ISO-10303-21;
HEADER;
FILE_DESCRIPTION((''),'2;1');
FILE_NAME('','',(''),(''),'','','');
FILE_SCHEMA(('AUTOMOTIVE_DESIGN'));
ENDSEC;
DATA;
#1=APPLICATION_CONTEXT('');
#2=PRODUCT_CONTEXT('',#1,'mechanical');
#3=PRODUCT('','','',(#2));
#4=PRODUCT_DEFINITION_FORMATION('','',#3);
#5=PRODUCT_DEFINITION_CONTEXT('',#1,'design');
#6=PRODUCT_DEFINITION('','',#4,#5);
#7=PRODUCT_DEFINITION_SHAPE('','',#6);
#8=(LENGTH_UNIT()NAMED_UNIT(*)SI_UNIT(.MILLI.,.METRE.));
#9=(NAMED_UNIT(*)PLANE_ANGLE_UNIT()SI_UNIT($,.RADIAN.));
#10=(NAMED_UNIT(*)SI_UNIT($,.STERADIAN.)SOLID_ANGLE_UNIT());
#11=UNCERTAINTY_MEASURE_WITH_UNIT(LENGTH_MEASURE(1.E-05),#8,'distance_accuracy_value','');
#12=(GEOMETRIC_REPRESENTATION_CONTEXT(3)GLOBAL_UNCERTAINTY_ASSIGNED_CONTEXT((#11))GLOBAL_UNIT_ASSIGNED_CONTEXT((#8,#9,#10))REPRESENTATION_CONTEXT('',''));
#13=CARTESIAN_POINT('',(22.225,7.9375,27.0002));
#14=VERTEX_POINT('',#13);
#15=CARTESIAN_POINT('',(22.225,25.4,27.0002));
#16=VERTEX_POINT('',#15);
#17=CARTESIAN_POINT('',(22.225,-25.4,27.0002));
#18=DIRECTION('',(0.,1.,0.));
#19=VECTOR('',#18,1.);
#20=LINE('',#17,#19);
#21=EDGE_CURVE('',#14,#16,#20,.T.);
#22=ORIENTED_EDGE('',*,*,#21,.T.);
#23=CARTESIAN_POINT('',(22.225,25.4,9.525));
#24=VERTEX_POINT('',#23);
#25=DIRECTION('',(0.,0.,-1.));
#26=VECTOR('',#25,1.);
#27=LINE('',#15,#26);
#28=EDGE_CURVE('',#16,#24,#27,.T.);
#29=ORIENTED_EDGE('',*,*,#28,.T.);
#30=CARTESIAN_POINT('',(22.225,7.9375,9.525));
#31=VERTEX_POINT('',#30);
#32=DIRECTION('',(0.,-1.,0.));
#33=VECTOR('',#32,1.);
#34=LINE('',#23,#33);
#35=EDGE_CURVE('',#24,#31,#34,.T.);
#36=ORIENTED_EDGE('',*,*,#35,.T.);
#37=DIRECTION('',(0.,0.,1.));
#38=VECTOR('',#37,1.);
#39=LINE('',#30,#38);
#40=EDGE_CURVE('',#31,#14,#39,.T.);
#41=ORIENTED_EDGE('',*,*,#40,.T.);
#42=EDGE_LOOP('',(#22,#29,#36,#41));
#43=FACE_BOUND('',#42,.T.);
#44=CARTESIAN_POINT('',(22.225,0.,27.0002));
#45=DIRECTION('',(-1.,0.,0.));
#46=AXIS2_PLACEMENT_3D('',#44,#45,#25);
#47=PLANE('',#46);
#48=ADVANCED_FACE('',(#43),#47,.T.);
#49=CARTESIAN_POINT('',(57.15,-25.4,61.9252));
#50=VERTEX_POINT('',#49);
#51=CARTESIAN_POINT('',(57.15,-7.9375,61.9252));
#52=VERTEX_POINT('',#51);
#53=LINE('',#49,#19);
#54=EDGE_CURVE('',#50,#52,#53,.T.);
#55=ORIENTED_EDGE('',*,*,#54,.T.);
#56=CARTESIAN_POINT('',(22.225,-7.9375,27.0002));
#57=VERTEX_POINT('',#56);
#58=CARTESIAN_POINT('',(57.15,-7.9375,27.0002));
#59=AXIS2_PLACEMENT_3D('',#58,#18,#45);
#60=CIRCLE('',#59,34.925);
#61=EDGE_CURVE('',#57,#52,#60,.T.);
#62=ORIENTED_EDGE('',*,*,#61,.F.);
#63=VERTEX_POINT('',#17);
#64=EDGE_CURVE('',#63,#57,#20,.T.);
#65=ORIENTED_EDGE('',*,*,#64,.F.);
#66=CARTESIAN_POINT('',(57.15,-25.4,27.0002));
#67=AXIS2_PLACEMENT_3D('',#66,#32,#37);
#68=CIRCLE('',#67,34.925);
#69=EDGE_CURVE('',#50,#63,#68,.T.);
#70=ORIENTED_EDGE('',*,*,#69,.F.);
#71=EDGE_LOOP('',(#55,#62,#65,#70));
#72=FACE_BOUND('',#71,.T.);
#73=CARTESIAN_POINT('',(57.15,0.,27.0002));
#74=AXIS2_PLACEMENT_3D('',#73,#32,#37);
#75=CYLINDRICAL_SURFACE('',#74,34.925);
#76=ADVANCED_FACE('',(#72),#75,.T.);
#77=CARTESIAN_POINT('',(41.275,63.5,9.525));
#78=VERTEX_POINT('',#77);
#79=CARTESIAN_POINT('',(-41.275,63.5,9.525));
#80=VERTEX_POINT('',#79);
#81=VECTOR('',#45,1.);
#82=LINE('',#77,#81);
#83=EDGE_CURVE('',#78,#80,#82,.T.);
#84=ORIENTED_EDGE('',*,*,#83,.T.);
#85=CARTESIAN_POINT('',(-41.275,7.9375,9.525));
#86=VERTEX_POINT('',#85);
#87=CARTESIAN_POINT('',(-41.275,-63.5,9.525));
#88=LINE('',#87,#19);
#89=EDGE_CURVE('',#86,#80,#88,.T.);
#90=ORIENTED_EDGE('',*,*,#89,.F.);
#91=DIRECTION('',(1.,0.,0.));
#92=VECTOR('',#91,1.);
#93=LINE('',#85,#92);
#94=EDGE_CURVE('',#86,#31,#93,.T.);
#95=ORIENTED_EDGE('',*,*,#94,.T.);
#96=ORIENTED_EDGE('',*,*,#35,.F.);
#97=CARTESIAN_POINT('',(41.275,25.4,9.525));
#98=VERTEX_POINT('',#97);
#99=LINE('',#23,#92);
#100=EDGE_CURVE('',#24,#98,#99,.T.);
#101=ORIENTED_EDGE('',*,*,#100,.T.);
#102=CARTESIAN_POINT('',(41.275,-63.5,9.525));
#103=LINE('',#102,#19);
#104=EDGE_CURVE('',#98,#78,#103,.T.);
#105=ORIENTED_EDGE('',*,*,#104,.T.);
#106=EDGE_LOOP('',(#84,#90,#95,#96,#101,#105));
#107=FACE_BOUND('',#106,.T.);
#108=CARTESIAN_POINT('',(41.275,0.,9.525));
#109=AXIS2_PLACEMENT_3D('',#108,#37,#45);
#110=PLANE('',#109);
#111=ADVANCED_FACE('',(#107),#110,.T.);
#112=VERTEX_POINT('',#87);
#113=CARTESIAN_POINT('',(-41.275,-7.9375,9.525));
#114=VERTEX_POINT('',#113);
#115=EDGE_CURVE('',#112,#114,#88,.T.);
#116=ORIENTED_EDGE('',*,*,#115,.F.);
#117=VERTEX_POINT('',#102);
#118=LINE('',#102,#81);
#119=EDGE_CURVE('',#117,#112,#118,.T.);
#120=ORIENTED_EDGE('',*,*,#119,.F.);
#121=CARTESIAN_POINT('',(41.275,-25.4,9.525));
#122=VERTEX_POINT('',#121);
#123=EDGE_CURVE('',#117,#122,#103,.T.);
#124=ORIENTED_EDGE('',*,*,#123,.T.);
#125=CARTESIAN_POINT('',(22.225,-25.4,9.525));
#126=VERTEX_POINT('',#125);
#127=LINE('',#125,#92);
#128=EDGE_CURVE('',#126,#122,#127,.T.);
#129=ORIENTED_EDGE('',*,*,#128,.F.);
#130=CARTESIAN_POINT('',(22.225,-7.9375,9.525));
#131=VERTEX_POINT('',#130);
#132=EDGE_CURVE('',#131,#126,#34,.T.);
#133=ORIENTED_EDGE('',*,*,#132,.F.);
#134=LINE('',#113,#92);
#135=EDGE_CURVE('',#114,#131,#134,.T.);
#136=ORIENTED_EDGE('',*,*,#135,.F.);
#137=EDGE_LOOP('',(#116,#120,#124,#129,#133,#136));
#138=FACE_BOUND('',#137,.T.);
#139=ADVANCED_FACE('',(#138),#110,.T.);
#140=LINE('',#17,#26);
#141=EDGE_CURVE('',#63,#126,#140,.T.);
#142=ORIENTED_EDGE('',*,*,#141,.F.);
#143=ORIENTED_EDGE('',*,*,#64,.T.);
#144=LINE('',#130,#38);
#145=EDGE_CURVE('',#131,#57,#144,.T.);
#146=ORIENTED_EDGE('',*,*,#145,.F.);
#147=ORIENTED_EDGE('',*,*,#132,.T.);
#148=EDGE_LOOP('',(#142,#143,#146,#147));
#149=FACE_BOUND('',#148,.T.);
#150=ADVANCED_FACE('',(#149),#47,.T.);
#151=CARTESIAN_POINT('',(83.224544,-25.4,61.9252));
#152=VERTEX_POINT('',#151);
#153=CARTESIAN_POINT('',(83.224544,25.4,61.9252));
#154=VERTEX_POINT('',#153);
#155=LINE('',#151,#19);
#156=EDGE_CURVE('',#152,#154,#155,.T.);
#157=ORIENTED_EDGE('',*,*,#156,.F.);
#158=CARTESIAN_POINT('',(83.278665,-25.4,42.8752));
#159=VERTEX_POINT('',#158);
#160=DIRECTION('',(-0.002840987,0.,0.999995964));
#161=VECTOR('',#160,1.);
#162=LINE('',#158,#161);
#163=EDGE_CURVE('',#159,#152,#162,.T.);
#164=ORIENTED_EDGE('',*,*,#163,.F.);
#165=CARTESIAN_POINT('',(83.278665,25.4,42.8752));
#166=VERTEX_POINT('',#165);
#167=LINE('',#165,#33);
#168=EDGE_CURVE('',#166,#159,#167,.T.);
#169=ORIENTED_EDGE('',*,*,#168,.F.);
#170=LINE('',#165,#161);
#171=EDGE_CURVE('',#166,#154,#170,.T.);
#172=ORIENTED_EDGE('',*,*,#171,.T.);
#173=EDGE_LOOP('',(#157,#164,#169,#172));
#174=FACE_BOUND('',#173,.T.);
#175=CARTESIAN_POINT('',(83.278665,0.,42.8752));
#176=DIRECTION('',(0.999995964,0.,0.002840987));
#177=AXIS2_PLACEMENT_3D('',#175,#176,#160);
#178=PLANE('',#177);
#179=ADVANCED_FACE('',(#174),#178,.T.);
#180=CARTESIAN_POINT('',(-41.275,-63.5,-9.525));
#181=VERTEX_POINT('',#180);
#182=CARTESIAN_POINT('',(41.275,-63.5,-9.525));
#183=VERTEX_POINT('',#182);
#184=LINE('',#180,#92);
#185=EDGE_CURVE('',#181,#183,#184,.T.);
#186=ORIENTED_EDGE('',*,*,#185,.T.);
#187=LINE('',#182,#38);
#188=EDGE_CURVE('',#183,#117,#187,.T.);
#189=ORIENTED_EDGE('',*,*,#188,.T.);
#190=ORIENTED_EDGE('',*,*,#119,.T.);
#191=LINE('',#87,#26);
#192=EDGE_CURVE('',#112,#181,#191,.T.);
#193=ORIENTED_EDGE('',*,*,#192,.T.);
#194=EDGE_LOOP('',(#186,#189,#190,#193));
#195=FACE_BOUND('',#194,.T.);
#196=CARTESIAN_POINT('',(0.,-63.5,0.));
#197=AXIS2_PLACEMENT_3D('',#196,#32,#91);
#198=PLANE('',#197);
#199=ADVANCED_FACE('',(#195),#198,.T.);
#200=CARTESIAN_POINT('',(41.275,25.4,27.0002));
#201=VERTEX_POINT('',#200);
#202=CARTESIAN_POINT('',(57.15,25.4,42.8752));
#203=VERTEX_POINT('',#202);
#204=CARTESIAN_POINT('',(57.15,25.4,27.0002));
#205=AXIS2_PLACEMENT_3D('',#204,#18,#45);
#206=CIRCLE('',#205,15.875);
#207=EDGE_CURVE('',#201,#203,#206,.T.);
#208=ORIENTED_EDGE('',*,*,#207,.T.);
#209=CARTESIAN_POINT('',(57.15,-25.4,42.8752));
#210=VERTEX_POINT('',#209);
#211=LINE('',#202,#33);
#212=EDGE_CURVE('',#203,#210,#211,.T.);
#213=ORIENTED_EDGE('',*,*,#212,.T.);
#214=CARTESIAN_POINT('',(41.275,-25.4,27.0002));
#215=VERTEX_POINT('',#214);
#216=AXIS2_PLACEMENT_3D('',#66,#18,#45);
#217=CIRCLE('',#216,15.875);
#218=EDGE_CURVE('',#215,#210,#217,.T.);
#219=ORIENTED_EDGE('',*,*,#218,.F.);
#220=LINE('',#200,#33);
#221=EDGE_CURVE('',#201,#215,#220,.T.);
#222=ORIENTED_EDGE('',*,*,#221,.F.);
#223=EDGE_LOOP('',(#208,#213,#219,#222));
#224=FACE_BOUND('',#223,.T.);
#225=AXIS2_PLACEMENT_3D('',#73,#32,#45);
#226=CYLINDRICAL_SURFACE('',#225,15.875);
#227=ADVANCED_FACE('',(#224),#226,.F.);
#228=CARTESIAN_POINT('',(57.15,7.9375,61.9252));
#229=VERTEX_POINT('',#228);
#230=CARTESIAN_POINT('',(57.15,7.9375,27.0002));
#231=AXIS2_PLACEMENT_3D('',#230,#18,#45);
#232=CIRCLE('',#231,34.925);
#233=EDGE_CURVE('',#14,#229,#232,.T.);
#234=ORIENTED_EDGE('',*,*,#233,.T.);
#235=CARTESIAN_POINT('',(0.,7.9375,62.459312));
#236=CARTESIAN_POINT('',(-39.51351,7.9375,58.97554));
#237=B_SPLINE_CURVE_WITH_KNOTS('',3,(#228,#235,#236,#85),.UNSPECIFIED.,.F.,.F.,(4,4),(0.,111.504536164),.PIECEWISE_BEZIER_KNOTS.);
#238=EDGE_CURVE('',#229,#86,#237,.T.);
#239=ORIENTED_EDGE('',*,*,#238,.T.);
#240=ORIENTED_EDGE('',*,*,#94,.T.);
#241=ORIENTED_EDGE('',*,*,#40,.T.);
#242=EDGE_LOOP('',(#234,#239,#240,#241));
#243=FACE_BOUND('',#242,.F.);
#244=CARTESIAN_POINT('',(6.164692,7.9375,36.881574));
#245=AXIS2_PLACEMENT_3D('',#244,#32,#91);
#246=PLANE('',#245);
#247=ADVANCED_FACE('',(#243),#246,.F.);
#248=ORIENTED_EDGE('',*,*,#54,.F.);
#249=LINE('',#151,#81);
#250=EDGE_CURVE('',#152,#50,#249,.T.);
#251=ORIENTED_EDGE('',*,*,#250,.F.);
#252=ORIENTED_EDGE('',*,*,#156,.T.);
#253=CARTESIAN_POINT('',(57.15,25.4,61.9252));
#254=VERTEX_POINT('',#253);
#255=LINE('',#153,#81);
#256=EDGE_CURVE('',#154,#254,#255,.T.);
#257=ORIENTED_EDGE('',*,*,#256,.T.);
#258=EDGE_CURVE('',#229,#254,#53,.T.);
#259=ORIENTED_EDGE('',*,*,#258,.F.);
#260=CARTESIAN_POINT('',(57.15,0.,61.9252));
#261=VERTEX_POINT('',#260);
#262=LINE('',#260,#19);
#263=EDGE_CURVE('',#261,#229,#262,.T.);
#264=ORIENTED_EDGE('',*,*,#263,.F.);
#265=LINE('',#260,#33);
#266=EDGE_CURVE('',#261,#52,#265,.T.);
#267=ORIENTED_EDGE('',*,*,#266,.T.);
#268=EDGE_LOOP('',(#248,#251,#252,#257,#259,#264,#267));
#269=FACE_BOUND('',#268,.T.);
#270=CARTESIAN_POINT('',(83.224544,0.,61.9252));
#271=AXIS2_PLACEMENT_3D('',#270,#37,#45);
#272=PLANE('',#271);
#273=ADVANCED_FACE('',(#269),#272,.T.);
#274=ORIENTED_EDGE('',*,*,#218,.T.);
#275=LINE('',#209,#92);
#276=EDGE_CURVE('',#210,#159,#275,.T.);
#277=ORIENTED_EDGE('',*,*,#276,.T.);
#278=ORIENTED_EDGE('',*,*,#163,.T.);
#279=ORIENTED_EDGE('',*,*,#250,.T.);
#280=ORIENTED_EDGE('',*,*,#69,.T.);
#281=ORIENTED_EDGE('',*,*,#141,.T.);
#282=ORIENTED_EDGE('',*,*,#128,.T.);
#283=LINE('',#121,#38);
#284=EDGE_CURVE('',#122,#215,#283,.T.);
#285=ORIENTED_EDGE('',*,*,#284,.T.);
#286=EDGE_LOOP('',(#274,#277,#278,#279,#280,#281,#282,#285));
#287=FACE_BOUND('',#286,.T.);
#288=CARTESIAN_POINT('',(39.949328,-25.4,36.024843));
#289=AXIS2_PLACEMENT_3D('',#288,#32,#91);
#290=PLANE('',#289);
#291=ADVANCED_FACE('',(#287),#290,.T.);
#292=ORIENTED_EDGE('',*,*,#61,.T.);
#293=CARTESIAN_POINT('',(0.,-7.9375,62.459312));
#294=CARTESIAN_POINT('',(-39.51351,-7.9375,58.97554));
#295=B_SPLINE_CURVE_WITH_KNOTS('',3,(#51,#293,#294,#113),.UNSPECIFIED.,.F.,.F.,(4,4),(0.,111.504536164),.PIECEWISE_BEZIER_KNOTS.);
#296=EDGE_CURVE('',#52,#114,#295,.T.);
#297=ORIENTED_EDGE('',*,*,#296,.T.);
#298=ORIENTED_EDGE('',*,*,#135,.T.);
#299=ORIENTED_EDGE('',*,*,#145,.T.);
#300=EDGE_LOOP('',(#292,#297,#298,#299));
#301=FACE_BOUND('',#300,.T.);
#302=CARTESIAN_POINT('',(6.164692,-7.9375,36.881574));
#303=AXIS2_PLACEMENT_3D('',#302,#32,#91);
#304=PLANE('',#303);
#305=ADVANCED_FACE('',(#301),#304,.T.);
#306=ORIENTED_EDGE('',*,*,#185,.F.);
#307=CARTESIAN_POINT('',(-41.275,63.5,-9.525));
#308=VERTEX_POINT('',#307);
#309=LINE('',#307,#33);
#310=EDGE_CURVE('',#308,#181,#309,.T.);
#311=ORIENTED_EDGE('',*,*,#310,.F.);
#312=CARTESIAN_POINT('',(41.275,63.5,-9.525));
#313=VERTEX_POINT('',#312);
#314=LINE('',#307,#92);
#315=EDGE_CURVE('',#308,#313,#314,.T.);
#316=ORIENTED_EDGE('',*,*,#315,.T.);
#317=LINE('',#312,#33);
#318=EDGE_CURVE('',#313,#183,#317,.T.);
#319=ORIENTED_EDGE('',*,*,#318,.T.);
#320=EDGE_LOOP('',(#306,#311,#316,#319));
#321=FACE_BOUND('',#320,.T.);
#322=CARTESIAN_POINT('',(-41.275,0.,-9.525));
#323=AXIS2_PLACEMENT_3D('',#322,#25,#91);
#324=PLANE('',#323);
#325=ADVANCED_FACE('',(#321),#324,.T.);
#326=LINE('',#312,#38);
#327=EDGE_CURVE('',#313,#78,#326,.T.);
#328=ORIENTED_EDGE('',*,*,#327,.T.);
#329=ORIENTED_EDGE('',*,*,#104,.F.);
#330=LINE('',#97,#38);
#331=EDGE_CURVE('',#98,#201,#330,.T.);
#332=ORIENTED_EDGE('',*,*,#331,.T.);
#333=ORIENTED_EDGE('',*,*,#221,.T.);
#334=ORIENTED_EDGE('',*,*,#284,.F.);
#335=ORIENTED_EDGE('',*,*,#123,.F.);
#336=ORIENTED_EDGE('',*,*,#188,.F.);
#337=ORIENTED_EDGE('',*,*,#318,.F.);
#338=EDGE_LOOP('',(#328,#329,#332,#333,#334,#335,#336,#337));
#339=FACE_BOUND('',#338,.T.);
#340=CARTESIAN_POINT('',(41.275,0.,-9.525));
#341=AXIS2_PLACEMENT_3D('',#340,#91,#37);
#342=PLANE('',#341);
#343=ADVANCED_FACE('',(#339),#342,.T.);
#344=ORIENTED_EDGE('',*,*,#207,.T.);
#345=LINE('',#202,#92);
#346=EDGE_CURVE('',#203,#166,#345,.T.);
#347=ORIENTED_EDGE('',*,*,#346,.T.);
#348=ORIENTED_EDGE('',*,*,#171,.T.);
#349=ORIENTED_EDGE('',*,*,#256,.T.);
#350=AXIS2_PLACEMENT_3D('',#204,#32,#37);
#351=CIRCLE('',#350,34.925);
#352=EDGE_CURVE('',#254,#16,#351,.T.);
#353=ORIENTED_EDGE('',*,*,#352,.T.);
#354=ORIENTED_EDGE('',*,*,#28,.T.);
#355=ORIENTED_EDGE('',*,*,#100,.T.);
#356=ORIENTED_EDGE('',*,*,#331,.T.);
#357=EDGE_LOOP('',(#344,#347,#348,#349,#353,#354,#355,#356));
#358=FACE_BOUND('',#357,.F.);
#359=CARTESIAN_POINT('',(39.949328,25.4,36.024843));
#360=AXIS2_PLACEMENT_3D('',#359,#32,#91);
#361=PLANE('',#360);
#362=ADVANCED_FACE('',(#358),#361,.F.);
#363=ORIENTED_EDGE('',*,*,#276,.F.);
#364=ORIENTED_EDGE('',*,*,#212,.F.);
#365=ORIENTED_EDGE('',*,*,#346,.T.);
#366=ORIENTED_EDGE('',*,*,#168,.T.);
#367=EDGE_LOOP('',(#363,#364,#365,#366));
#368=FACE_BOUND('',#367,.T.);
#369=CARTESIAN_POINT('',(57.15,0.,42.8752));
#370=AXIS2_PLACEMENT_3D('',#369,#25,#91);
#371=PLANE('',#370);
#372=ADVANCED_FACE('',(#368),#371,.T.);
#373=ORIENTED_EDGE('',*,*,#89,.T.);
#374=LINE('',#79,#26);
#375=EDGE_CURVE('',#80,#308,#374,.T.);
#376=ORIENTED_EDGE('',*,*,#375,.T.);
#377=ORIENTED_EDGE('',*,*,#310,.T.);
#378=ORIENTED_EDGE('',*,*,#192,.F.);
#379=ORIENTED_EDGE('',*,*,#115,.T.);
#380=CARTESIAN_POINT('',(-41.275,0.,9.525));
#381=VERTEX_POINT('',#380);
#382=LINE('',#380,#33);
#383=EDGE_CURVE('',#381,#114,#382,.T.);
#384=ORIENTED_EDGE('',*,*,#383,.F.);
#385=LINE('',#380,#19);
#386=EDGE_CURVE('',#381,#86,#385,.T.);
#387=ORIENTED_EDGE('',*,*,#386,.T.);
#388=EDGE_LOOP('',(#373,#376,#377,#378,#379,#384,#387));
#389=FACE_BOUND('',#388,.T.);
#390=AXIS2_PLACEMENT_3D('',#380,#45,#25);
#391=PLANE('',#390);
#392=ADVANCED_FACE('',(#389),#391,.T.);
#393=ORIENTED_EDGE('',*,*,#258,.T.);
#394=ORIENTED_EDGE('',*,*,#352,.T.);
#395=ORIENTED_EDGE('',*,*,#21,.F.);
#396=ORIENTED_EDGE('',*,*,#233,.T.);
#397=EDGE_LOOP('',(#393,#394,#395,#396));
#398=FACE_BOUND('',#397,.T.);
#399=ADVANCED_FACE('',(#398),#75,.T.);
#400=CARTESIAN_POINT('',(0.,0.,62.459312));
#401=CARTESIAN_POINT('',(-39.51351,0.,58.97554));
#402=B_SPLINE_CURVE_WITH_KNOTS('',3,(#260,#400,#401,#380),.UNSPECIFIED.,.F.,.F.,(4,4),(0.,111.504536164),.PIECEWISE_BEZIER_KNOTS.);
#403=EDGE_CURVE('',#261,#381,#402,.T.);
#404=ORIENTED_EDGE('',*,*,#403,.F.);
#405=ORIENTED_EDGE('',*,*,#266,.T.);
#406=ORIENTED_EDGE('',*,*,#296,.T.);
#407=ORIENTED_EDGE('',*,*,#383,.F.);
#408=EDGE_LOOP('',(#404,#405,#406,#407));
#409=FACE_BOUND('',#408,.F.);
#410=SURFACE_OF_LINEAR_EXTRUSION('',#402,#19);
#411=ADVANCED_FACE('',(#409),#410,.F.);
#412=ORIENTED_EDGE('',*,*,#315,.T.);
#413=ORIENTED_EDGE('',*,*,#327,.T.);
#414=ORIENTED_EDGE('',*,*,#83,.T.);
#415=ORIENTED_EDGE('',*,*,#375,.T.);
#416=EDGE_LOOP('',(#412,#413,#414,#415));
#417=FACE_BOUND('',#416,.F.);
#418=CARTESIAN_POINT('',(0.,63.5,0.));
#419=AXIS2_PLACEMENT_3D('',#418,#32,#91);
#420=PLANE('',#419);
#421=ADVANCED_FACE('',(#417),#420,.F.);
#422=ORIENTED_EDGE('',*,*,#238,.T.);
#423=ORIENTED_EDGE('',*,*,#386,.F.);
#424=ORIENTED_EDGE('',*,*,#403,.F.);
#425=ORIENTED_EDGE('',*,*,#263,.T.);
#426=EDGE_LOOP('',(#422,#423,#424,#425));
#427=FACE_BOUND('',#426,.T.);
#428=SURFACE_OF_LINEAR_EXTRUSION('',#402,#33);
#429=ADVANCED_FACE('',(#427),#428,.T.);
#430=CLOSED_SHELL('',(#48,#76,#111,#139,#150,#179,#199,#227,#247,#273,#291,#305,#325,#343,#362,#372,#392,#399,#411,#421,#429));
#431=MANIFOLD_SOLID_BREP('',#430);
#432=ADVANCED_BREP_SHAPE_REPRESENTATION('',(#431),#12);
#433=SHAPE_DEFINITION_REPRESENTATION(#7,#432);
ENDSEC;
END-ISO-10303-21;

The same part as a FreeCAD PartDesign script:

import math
import FreeCAD as App
import Part
import Sketcher
Q = App.Units.Quantity


def add_polygon(sketch, points):
    """Adds a closed chain of lines whose ends are joined by coincident constraints."""
    first, n = sketch.GeometryCount, len(points)
    for a, b in zip(points, points[1:] + points[:1]):
        sketch.addGeometry(Part.LineSegment(App.Vector(*a, 0), App.Vector(*b, 0)), False)
    for i in range(n):
        sketch.addConstraint(Sketcher.Constraint("Coincident", first + i, 2, first + (i + 1) % n, 1))

doc = App.newDocument("Part")
params = doc.addObject("Spreadsheet::Sheet", "Params")
for row, (alias, value) in enumerate([
    ("sketch1_width", "3.25 in"),
    ("sketch1_height", "0.75 in"),
    ("pad1_length", "5 in"),
    ("sketch2_radius", "0.625 in"),
    ("sketch2_radius2", "1.375 in"),
    ("sketch2_height", "0.688 in"),
    ("pad2_length", "2 in"),
    ("sketch3_width", "2.5 in"),
    ("sketch3_radius", "1.375 in"),
    ("pad3_length", "0.625 in"),
], start=1):
    params.set(f"A{row}", alias)
    params.set(f"B{row}", "=" + value)
    params.setAlias(f"B{row}", alias)

body = doc.addObject("PartDesign::Body", "Body")

# Sketch on XZ plane
sketch1 = body.newObject("Sketcher::SketchObject", "Sketch")
sketch1.AttachmentSupport = (doc.getObject("XZ_Plane"), [""])
sketch1.MapMode = "FlatFace"
add_polygon(sketch1, [(-41, 10), (-41, -10), (41, -10), (41, 10)])  # lines 0-3
sketch1.addConstraint([
    Sketcher.Constraint("Vertical", 0),
    Sketcher.Constraint("Horizontal", 1),
    Sketcher.Constraint("Vertical", 2),
    Sketcher.Constraint("Horizontal", 3),
    Sketcher.Constraint("Symmetric", 0, 2, 2, 2, -1, 1),
    Sketcher.Constraint("DistanceX", 1, 1, 1, 2, Q("3.25 in")),
    Sketcher.Constraint("DistanceY", 0, 2, 0, 1, Q("0.75 in")),
])
sketch1.setExpression("Constraints[9]", "Params.sketch1_width")
sketch1.setExpression("Constraints[10]", "Params.sketch1_height")
pad1 = body.newObject("PartDesign::Pad", "Pad")
pad1.Profile = sketch1
pad1.setExpression("Length", "Params.pad1_length")
pad1.Midplane = True

# Sketch on XZ plane
sketch2 = body.newObject("Sketcher::SketchObject", "Sketch001")
sketch2.AttachmentSupport = (doc.getObject("XZ_Plane"), [""])
sketch2.MapMode = "FlatFace"
sketch2.addGeometry([
    Part.LineSegment(App.Vector(22, 27, 0), App.Vector(22, 10, 0)),  # 0
    Part.LineSegment(App.Vector(22, 10, 0), App.Vector(41, 10, 0)),  # 1
    Part.LineSegment(App.Vector(41, 10, 0), App.Vector(41, 27, 0)),  # 2
    Part.ArcOfCircle(Part.Circle(App.Vector(57, 27, 0), App.Vector(0, 0, 1), 16), math.radians(90), math.radians(180)),  # 3
    Part.LineSegment(App.Vector(57, 43, 0), App.Vector(83, 43, 0)),  # 4
    Part.LineSegment(App.Vector(83, 43, 0), App.Vector(83, 62, 0)),  # 5
    Part.LineSegment(App.Vector(83, 62, 0), App.Vector(57, 62, 0)),  # 6
    Part.ArcOfCircle(Part.Circle(App.Vector(57, 27, 0), App.Vector(0, 0, 1), 35), math.radians(90), math.radians(180)),  # 7
], False)
sketch2.addConstraint([
    Sketcher.Constraint("Coincident", 0, 2, 1, 1),
    Sketcher.Constraint("Coincident", 1, 2, 2, 1),
    Sketcher.Constraint("Tangent", 2, 2, 3, 2),
    Sketcher.Constraint("Tangent", 3, 1, 4, 1),
    Sketcher.Constraint("Coincident", 4, 2, 5, 1),
    Sketcher.Constraint("Coincident", 5, 2, 6, 1),
    Sketcher.Constraint("Tangent", 6, 2, 7, 1),
    Sketcher.Constraint("Tangent", 7, 2, 0, 1),
    Sketcher.Constraint("Vertical", 0),
    Sketcher.Constraint("Horizontal", 1),
    Sketcher.Constraint("Vertical", 2),
    Sketcher.Constraint("Horizontal", 4),
    Sketcher.Constraint("Horizontal", 6),
    Sketcher.Constraint("Coincident", 7, 3, 3, 3),
    Sketcher.Constraint("Radius", 3, Q("0.625 in")),
    Sketcher.Constraint("Radius", 7, Q("1.375 in")),
    Sketcher.Constraint("DistanceY", 0, 2, 0, 1, Q("0.688 in")),
    Sketcher.Constraint("DistanceX", -1, 1, 3, 3, Q("2.25 in")),
    Sketcher.Constraint("DistanceY", -1, 1, 3, 3, Q("1.063 in")),
    Sketcher.Constraint("DistanceX", 4, 1, 4, 2, 26.128665),
    Sketcher.Constraint("DistanceX", 6, 2, 6, 1, 26.074544),
])
sketch2.setExpression("Constraints[14]", "Params.sketch2_radius")
sketch2.setExpression("Constraints[15]", "Params.sketch2_radius2")
sketch2.setExpression("Constraints[16]", "Params.sketch2_height")
pad2 = body.newObject("PartDesign::Pad", "Pad001")
pad2.Profile = sketch2
pad2.setExpression("Length", "Params.pad2_length")
pad2.Midplane = True

# Sketch on XZ plane
sketch3 = body.newObject("Sketcher::SketchObject", "Sketch002")
sketch3.AttachmentSupport = (doc.getObject("XZ_Plane"), [""])
sketch3.MapMode = "FlatFace"
sketch3.addGeometry([
    Part.BSplineCurve([App.Vector(57.15, 61.9252, 0), App.Vector(0, 62.459312, 0), App.Vector(-39.51351, 58.97554, 0), App.Vector(-41.275, 9.525, 0)], [4, 4], [0, 111.504536164], False, 3, [1, 1, 1, 1], False),
    Part.LineSegment(App.Vector(-41.275, 9.525, 0), App.Vector(22.225, 9.525, 0)),
    Part.LineSegment(App.Vector(22.225, 9.525, 0), App.Vector(22.225, 27.0002, 0)),
    Part.ArcOfCircle(Part.Circle(App.Vector(57.15, 27.0002, 0), App.Vector(0, 0, 1), 34.925), math.radians(90), math.radians(180)),
], False)
sketch3.addConstraint([
    Sketcher.Constraint("Block", 0),
    Sketcher.Constraint("Coincident", 0, 2, 1, 1),
    Sketcher.Constraint("Coincident", 1, 2, 2, 1),
    Sketcher.Constraint("Tangent", 2, 2, 3, 2),
    Sketcher.Constraint("Coincident", 3, 1, 0, 1),
    Sketcher.Constraint("Horizontal", 1),
    Sketcher.Constraint("Vertical", 2),
    Sketcher.Constraint("DistanceX", 1, 1, 1, 2, Q("2.5 in")),
    Sketcher.Constraint("Radius", 3, Q("1.375 in")),
])
sketch3.setExpression("Constraints[7]", "Params.sketch3_width")
sketch3.setExpression("Constraints[8]", "Params.sketch3_radius")
pad3 = body.newObject("PartDesign::Pad", "Pad002")
pad3.Profile = sketch3
pad3.setExpression("Length", "Params.pad3_length")
pad3.Midplane = True

doc.recompute()
